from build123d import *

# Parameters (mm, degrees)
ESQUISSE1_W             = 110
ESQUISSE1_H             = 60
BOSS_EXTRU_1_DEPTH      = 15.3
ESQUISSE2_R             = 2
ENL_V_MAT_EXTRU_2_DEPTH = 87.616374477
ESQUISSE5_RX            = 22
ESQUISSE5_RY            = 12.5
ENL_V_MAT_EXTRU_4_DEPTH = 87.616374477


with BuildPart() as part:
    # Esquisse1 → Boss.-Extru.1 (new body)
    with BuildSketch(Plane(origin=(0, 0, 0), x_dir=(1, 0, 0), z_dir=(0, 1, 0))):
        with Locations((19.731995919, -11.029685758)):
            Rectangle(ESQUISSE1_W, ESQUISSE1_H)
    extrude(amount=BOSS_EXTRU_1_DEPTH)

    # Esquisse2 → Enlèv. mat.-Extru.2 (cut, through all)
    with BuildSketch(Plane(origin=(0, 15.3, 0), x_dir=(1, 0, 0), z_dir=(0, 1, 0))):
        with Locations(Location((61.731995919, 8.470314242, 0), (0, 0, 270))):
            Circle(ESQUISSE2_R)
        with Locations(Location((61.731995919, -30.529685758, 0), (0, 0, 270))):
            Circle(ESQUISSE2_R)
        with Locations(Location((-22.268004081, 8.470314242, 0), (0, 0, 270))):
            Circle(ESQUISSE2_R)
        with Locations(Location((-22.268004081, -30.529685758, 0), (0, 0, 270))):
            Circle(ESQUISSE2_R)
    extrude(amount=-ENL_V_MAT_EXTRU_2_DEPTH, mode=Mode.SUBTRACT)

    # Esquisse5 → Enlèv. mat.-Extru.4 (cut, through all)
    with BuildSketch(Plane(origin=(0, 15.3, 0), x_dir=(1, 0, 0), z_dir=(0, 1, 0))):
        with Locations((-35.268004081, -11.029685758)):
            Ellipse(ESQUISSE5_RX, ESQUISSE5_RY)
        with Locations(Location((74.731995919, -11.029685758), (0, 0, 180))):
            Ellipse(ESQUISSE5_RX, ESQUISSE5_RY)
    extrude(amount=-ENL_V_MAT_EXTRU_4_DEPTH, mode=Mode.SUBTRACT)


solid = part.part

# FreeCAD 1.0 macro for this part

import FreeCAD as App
import Part
import Sketcher

V = App.Vector
Q = App.Units.Quantity

doc = App.newDocument("Part")
body = doc.addObject("PartDesign::Body", "Body")

# Sketch on XZ plane
sketch1 = body.newObject("Sketcher::SketchObject", "Sketch")
sketch1.AttachmentSupport = (doc.getObject("XZ_Plane"), [""])
sketch1.MapMode = "FlatFace"
sketch1.addGeometry(Part.LineSegment(V(-35, -19, 0), V(-35, 41, 0)), False)
sketch1.addGeometry(Part.LineSegment(V(-35, 41, 0), V(75, 41, 0)), False)
sketch1.addGeometry(Part.LineSegment(V(75, 41, 0), V(75, -19, 0)), False)
sketch1.addGeometry(Part.LineSegment(V(75, -19, 0), V(-35, -19, 0)), False)
sketch1.addConstraint(Sketcher.Constraint("Coincident", 0, 2, 1, 1))
sketch1.addConstraint(Sketcher.Constraint("Coincident", 1, 2, 2, 1))
sketch1.addConstraint(Sketcher.Constraint("Coincident", 2, 2, 3, 1))
sketch1.addConstraint(Sketcher.Constraint("Coincident", 3, 2, 0, 1))
sketch1.addConstraint(Sketcher.Constraint("Vertical", 0))
sketch1.addConstraint(Sketcher.Constraint("Horizontal", 1))
sketch1.addConstraint(Sketcher.Constraint("Vertical", 2))
sketch1.addConstraint(Sketcher.Constraint("Horizontal", 3))
sketch1.addConstraint(Sketcher.Constraint("DistanceX", 1, 1, 1, 2, Q("110 mm")))
sketch1.addConstraint(Sketcher.Constraint("DistanceY", 0, 1, 0, 2, Q("60 mm")))
sketch1.addConstraint(Sketcher.Constraint("DistanceX", 0, 2, -1, 1, Q("35.268004 mm")))
sketch1.addConstraint(Sketcher.Constraint("DistanceY", -1, 1, 0, 2, Q("41.029686 mm")))
pad1 = body.newObject("PartDesign::Pad", "Pad")
pad1.Profile = sketch1
pad1.Length = 15.3
pad1.Reversed = True

# Sketch on XZ plane
sketch2 = body.newObject("Sketcher::SketchObject", "Sketch001")
sketch2.AttachmentSupport = (doc.getObject("XZ_Plane"), [""])
sketch2.MapMode = "FlatFace"
sketch2.AttachmentOffset = App.Placement(V(0, 0, -15.3), App.Rotation())
sketch2.addGeometry(Part.Circle(V(61.7, -8.5, 0), V(0, 0, 1), 2), False)
sketch2.addGeometry(Part.Circle(V(61.7, 30.5, 0), V(0, 0, 1), 2), False)
sketch2.addGeometry(Part.Circle(V(-22.3, -8.5, 0), V(0, 0, 1), 2), False)
sketch2.addGeometry(Part.Circle(V(-22.3, 30.5, 0), V(0, 0, 1), 2), False)
sketch2.addConstraint(Sketcher.Constraint("Equal", 0, 1))
sketch2.addConstraint(Sketcher.Constraint("Equal", 1, 2))
sketch2.addConstraint(Sketcher.Constraint("Equal", 2, 3))
sketch2.addConstraint(Sketcher.Constraint("Horizontal", 0, 3, 2, 3))
sketch2.addConstraint(Sketcher.Constraint("Horizontal", 1, 3, 3, 3))
sketch2.addConstraint(Sketcher.Constraint("Vertical", 0, 3, 1, 3))
sketch2.addConstraint(Sketcher.Constraint("Vertical", 2, 3, 3, 3))
sketch2.addConstraint(Sketcher.Constraint("Diameter", 0, Q("4 mm")))
sketch2.addConstraint(Sketcher.Constraint("DistanceY", 0, 3, 1, 3, Q("39 mm")))
sketch2.addConstraint(Sketcher.Constraint("DistanceX", 2, 3, 0, 3, Q("84 mm")))
sketch2.addConstraint(Sketcher.Constraint("DistanceX", -1, 1, 0, 3, Q("61.731996 mm")))
sketch2.addConstraint(Sketcher.Constraint("DistanceY", 0, 3, -1, 1, Q("8.470314 mm")))
pocket1 = body.newObject("PartDesign::Pocket", "Pocket")
pocket1.Profile = sketch2
pocket1.Type = "ThroughAll"
pocket1.Reversed = True

# Sketch on XZ plane
sketch3 = body.newObject("Sketcher::SketchObject", "Sketch002")
sketch3.AttachmentSupport = (doc.getObject("XZ_Plane"), [""])
sketch3.MapMode = "FlatFace"
sketch3.AttachmentOffset = App.Placement(V(0, 0, -15.3), App.Rotation())
sketch3.addGeometry(Part.Ellipse(V(-13.268004, 11.029686, 0), V(-35.268004, 23.529686, 0), V(-35.268004, 11.029686, 0)), False)
sketch3.addGeometry(Part.Ellipse(V(52.731996, 11.029686, 0), V(74.731996, -1.470314, 0), V(74.731996, 11.029686, 0)), False)
sketch3.addConstraint(Sketcher.Constraint("Block", 0))
sketch3.addConstraint(Sketcher.Constraint("Block", 1))
pocket2 = body.newObject("PartDesign::Pocket", "Pocket001")
pocket2.Profile = sketch3
pocket2.Type = "ThroughAll"
pocket2.Reversed = True

doc.recompute()
